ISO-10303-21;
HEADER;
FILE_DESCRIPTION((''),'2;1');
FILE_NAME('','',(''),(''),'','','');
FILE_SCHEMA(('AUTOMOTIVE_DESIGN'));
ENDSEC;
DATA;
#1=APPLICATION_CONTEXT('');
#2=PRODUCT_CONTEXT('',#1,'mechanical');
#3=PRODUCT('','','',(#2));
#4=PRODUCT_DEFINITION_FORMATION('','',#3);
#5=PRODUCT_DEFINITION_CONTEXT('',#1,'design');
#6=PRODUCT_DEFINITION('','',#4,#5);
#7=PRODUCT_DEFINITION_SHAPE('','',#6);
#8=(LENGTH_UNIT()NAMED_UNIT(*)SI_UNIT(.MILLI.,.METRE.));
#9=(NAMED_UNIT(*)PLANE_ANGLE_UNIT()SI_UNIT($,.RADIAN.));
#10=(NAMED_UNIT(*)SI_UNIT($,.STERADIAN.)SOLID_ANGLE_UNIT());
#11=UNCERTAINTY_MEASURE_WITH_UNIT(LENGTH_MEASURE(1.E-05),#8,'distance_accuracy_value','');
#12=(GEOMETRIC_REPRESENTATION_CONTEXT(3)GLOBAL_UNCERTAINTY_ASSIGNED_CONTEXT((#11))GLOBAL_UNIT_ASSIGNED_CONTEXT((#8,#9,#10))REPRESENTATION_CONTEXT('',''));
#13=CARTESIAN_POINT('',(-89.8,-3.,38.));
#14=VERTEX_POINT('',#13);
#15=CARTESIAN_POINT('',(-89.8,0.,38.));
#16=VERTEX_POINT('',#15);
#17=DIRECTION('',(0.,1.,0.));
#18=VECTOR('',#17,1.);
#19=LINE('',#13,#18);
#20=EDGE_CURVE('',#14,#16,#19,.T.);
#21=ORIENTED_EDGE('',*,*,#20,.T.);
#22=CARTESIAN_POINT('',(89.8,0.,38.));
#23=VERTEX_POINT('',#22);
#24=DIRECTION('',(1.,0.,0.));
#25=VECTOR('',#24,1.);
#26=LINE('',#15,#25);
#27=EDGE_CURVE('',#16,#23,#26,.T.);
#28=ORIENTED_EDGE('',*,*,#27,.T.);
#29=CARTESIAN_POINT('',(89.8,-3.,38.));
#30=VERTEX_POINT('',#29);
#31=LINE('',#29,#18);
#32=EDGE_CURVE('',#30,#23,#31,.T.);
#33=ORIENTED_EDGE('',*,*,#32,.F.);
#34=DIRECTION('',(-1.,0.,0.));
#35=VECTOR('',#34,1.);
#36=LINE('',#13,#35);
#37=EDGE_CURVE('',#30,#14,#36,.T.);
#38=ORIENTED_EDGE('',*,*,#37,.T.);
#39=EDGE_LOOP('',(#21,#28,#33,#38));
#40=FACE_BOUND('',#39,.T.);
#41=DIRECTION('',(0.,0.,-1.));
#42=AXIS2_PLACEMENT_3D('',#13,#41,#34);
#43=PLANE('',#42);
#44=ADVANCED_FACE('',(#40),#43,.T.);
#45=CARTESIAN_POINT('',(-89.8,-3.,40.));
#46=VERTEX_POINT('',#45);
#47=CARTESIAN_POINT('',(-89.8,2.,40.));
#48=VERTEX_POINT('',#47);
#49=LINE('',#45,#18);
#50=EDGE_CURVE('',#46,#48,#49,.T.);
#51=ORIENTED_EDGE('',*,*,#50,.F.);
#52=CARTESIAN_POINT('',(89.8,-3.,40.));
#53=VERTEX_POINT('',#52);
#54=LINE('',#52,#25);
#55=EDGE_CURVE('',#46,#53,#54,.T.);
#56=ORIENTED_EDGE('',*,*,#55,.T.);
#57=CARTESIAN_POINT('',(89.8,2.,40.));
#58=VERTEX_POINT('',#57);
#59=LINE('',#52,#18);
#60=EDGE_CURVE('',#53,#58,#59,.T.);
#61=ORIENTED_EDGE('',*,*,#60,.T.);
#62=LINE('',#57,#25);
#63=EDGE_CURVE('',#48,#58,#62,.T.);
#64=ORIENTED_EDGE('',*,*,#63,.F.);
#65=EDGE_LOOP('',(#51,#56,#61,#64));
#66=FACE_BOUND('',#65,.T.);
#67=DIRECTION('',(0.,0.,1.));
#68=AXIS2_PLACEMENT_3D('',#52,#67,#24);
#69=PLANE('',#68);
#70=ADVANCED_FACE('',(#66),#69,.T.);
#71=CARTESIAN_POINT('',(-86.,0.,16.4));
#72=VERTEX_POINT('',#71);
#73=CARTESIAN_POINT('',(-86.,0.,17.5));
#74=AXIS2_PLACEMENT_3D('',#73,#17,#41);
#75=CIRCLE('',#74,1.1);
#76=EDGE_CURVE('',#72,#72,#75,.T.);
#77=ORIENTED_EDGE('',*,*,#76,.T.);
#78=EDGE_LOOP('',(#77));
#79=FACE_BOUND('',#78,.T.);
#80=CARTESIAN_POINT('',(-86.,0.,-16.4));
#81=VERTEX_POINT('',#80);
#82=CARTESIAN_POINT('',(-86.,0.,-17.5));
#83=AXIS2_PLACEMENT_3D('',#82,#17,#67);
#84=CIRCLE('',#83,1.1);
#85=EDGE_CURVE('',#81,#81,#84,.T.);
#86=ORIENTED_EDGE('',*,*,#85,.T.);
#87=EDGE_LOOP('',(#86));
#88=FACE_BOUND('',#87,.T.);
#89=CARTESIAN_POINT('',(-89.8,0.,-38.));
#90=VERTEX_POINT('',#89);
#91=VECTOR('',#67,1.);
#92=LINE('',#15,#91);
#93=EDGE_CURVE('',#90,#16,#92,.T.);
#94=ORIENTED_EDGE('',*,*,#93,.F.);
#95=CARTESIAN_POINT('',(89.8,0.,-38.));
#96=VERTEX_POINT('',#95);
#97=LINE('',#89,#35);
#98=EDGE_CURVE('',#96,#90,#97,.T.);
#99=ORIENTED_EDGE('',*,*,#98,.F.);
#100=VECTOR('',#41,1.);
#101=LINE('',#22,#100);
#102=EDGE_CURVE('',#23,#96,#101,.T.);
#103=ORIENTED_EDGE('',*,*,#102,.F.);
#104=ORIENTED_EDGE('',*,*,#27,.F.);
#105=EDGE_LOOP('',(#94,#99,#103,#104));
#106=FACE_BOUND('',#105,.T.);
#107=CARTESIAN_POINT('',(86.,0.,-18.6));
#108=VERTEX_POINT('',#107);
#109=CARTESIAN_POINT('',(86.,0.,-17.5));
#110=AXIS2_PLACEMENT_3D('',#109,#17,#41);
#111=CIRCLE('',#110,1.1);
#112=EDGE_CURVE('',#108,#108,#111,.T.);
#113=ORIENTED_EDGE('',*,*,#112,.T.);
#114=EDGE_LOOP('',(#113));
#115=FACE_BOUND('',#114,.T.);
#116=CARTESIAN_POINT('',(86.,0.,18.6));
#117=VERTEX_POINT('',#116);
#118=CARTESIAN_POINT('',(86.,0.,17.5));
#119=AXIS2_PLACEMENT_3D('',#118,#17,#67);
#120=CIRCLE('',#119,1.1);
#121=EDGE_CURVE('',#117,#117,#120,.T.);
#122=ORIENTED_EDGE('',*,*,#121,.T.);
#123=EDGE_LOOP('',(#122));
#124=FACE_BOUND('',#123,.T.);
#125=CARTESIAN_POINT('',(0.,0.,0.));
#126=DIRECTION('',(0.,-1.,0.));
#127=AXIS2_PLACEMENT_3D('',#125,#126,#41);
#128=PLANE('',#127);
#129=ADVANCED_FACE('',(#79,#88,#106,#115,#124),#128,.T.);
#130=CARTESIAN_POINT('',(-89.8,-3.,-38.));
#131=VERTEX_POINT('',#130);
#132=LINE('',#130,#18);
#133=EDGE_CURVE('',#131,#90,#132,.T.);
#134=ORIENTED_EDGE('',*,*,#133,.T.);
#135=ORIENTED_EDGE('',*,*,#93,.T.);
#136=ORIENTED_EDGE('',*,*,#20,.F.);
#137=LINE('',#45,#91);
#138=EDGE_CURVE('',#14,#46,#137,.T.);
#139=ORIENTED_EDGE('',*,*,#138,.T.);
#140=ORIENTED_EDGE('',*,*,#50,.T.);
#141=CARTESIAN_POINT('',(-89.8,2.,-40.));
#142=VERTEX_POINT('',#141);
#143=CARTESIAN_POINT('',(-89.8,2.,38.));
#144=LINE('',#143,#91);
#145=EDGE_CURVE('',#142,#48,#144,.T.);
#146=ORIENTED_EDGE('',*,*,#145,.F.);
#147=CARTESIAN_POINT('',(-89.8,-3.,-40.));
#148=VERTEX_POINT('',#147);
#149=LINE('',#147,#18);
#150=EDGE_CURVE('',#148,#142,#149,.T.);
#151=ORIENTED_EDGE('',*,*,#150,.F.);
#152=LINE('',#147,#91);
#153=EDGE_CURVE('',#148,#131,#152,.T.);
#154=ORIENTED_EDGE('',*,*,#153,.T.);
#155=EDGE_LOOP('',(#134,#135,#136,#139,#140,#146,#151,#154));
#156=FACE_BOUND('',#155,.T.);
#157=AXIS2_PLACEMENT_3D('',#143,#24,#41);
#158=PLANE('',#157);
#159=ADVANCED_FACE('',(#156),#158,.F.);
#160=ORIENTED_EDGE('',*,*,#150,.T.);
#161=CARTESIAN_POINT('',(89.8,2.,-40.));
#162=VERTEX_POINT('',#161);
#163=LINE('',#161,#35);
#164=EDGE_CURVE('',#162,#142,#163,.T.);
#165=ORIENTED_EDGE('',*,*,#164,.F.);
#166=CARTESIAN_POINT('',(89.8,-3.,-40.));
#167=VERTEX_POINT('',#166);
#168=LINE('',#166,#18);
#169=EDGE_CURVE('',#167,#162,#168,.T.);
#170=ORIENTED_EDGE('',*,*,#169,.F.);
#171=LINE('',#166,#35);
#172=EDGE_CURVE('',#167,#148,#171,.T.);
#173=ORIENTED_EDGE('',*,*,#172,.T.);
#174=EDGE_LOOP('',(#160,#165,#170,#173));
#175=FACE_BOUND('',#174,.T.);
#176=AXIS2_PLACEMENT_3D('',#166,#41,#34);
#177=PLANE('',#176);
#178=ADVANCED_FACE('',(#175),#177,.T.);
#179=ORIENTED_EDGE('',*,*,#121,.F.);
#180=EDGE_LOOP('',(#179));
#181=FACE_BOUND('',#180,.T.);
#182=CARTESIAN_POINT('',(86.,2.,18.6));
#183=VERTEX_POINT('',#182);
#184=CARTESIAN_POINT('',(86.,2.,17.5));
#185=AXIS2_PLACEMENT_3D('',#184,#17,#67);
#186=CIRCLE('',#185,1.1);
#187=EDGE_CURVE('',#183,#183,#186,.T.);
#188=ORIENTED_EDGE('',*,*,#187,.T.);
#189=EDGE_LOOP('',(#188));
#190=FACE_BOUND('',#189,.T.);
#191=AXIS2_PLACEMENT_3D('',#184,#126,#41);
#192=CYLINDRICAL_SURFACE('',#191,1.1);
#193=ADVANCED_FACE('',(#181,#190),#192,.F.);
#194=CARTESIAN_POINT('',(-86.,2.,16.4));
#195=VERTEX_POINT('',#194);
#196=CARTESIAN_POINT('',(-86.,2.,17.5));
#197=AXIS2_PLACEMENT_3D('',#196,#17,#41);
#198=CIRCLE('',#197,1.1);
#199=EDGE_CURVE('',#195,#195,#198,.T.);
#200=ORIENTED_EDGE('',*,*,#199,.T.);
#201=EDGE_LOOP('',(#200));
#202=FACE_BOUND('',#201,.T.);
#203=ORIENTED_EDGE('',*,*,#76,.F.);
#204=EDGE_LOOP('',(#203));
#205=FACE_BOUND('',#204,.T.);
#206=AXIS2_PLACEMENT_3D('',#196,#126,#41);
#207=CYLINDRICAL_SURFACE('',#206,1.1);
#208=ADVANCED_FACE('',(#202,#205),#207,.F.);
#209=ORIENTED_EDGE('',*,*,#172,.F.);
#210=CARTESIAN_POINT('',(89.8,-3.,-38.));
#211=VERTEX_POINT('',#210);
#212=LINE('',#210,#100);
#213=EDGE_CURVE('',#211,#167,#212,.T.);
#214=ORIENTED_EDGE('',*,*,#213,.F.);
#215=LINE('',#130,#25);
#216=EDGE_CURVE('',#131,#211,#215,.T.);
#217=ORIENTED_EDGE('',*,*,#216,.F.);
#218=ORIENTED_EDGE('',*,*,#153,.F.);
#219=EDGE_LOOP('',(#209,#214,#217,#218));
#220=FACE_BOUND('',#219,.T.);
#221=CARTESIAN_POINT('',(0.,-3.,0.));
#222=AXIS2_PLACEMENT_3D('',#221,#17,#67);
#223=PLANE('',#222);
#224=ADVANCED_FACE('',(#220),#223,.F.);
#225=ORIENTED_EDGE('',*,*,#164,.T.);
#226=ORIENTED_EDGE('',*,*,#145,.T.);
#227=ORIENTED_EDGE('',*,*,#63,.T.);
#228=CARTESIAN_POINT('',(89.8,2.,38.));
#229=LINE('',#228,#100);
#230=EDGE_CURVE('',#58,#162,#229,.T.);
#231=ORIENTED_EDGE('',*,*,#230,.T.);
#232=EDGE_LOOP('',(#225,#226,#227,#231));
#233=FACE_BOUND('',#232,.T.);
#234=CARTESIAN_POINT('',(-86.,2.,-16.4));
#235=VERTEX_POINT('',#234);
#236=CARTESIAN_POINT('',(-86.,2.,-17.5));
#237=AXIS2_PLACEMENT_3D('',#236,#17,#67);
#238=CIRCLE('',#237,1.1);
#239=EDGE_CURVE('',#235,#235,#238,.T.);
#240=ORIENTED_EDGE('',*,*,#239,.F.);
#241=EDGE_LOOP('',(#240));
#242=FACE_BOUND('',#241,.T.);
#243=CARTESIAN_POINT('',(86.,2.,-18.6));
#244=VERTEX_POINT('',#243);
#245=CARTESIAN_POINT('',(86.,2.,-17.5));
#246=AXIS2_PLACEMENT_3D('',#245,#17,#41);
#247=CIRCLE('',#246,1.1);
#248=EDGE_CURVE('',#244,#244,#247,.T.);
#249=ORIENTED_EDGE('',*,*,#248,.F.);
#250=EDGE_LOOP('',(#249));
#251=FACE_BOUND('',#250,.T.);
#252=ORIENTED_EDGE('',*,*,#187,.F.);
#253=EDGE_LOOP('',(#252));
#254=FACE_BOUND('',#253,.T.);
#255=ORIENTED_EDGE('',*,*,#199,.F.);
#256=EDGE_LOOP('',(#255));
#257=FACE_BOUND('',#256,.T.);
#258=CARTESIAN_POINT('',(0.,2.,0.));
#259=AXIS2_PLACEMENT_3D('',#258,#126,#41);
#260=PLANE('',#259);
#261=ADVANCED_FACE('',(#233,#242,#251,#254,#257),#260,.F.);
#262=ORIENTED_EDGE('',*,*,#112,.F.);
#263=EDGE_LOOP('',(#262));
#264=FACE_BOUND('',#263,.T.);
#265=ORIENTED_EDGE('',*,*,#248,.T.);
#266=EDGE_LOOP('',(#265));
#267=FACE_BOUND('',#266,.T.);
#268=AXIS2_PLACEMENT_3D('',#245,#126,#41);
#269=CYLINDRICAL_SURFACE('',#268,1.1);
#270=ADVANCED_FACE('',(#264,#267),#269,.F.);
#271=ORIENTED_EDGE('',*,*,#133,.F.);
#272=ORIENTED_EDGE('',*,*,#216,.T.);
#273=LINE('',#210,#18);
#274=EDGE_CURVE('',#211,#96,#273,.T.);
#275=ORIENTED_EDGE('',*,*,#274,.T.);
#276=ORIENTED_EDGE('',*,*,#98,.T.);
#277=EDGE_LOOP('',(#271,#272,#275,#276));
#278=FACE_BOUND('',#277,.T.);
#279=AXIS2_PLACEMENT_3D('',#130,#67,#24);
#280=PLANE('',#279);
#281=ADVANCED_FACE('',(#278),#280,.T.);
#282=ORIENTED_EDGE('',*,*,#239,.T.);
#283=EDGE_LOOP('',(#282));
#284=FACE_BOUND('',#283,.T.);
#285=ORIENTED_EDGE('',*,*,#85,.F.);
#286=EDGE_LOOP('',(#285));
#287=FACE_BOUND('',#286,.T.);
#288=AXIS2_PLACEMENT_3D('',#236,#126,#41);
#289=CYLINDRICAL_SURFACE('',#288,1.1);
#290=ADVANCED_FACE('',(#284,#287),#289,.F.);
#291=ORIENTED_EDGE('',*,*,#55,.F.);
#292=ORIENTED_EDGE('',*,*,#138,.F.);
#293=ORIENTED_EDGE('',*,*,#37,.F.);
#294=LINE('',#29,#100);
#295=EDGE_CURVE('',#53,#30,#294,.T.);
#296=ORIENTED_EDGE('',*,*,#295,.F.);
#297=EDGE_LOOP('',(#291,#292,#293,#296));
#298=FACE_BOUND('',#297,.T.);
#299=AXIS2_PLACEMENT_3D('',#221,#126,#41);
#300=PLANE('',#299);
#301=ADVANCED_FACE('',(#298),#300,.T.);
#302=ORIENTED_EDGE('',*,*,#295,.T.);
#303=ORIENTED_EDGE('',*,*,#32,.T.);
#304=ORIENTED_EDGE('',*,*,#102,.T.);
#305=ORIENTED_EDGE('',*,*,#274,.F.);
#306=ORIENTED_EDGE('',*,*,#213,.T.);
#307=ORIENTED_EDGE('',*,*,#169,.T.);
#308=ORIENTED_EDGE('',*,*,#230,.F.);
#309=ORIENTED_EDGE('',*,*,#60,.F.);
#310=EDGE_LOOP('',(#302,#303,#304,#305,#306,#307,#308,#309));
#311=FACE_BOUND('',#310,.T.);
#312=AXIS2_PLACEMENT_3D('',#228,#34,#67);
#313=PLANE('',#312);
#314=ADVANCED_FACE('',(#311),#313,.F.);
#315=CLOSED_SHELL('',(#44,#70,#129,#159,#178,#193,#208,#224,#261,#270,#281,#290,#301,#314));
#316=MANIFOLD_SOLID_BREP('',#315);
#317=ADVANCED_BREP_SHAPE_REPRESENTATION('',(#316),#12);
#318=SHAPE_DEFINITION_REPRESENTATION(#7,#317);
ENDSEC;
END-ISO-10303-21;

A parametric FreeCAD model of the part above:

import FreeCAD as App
import Part
import Sketcher

V = App.Vector

doc = App.newDocument("Part")
params = doc.addObject("Spreadsheet::Sheet", "Params")
for row, (alias, value) in enumerate([
    ("sketch1_diameter", "2.2 mm"),
    ("sketch1_height", "76 mm"),
    ("sketch1_width", "179.6 mm"),
    ("pad1_length", "2 mm"),
    ("sketch2_height", "2 mm"),
    ("sketch2_width", "179.6 mm"),
    ("pad2_length", "5 mm"),
], start=1):
    params.set(f"A{row}", alias)
    params.set(f"B{row}", "=" + value)
    params.setAlias(f"B{row}", alias)

body = doc.addObject("PartDesign::Body", "Body")

# Sketch on XZ plane
sketch1 = doc.addObject("Sketcher::SketchObject", "Sketch")
body.addObject(sketch1)
sketch1.AttachmentSupport = (doc.XZ_Plane, [""])
sketch1.MapMode = "FlatFace"
sketch1.addGeometry(Part.LineSegment(V(-89.8, -38, 0), V(-89.8, 38, 0)), False)
sketch1.addGeometry(Part.LineSegment(V(-89.8, 38, 0), V(89.8, 38, 0)), False)
sketch1.addGeometry(Part.LineSegment(V(89.8, 38, 0), V(89.8, -38, 0)), False)
sketch1.addGeometry(Part.LineSegment(V(89.8, -38, 0), V(-89.8, -38, 0)), False)
sketch1.addGeometry(Part.Circle(V(-86, 17.5, 0), V(0, 0, 1), 1.1), False)
sketch1.addGeometry(Part.Circle(V(86, 17.5, 0), V(0, 0, 1), 1.1), False)
sketch1.addGeometry(Part.Circle(V(-86, -17.5, 0), V(0, 0, 1), 1.1), False)
sketch1.addGeometry(Part.Circle(V(86, -17.5, 0), V(0, 0, 1), 1.1), False)
sketch1.addConstraint(Sketcher.Constraint("Coincident", 0, 2, 1, 1))
sketch1.addConstraint(Sketcher.Constraint("Coincident", 1, 2, 2, 1))
sketch1.addConstraint(Sketcher.Constraint("Coincident", 2, 2, 3, 1))
sketch1.addConstraint(Sketcher.Constraint("Coincident", 3, 2, 0, 1))
sketch1.addConstraint(Sketcher.Constraint("Vertical", 0))
sketch1.addConstraint(Sketcher.Constraint("Horizontal", 1))
sketch1.addConstraint(Sketcher.Constraint("Vertical", 2))
sketch1.addConstraint(Sketcher.Constraint("Horizontal", 3))
sketch1.addConstraint(Sketcher.Constraint("Equal", 4, 5))
sketch1.addConstraint(Sketcher.Constraint("Equal", 5, 6))
sketch1.addConstraint(Sketcher.Constraint("Equal", 6, 7))
sketch1.addConstraint(Sketcher.Constraint("Symmetric", 5, 3, 6, 3, -1, 1))
sketch1.addConstraint(Sketcher.Constraint("Symmetric", 4, 3, 7, 3, -1, 1))
sketch1.addConstraint(Sketcher.Constraint("Symmetric", 0, 2, 2, 2, -1, 1))
sketch1.addConstraint(Sketcher.Constraint("Symmetric", 4, 3, 5, 3, -2))
sketch1.addConstraint(Sketcher.Constraint("Diameter", 4, 2.2))
sketch1.addConstraint(Sketcher.Constraint("DistanceY", 0, 1, 0, 2, 76.0))
sketch1.addConstraint(Sketcher.Constraint("DistanceX", 1, 1, 1, 2, 179.6))
sketch1.addConstraint(Sketcher.Constraint("DistanceX", 4, 3, -1, 1, 86.0))
sketch1.addConstraint(Sketcher.Constraint("DistanceY", 6, 3, 4, 3, 35.0))
sketch1.setExpression("Constraints[15]", "Params.sketch1_diameter")
sketch1.setExpression("Constraints[16]", "Params.sketch1_height")
sketch1.setExpression("Constraints[17]", "Params.sketch1_width")
pad1 = doc.addObject("PartDesign::Pad", "Pad")
body.addObject(pad1)
pad1.Profile = sketch1
pad1.setExpression("Length", "Params.pad1_length")
pad1.Reversed = True

# Sketch on XZ plane
sketch2 = doc.addObject("Sketcher::SketchObject", "Sketch001")
body.addObject(sketch2)
sketch2.AttachmentSupport = (doc.XZ_Plane, [""])
sketch2.MapMode = "FlatFace"
sketch2.AttachmentOffset = App.Placement(V(0, 0, -2), App.Rotation())
sketch2.addGeometry(Part.LineSegment(V(-89.8, -40, 0), V(-89.8, -38, 0)), False)
sketch2.addGeometry(Part.LineSegment(V(-89.8, -38, 0), V(89.8, -38, 0)), False)
sketch2.addGeometry(Part.LineSegment(V(89.8, -38, 0), V(89.8, -40, 0)), False)
sketch2.addGeometry(Part.LineSegment(V(89.8, -40, 0), V(-89.8, -40, 0)), False)
sketch2.addGeometry(Part.LineSegment(V(-89.8, 38, 0), V(-89.8, 40, 0)), False)
sketch2.addGeometry(Part.LineSegment(V(-89.8, 40, 0), V(89.8, 40, 0)), False)
sketch2.addGeometry(Part.LineSegment(V(89.8, 40, 0), V(89.8, 38, 0)), False)
sketch2.addGeometry(Part.LineSegment(V(89.8, 38, 0), V(-89.8, 38, 0)), False)
sketch2.addConstraint(Sketcher.Constraint("Coincident", 0, 2, 1, 1))
sketch2.addConstraint(Sketcher.Constraint("Coincident", 1, 2, 2, 1))
sketch2.addConstraint(Sketcher.Constraint("Coincident", 2, 2, 3, 1))
sketch2.addConstraint(Sketcher.Constraint("Coincident", 3, 2, 0, 1))
sketch2.addConstraint(Sketcher.Constraint("Coincident", 4, 2, 5, 1))
sketch2.addConstraint(Sketcher.Constraint("Coincident", 5, 2, 6, 1))
sketch2.addConstraint(Sketcher.Constraint("Coincident", 6, 2, 7, 1))
sketch2.addConstraint(Sketcher.Constraint("Coincident", 7, 2, 4, 1))
sketch2.addConstraint(Sketcher.Constraint("Vertical", 0))
sketch2.addConstraint(Sketcher.Constraint("Horizontal", 1))
sketch2.addConstraint(Sketcher.Constraint("Vertical", 2))
sketch2.addConstraint(Sketcher.Constraint("Horizontal", 3))
sketch2.addConstraint(Sketcher.Constraint("Vertical", 4))
sketch2.addConstraint(Sketcher.Constraint("Horizontal", 5))
sketch2.addConstraint(Sketcher.Constraint("Vertical", 6))
sketch2.addConstraint(Sketcher.Constraint("Horizontal", 7))
sketch2.addConstraint(Sketcher.Constraint("Symmetric", 2, 2, 4, 2, -1, 1))
sketch2.addConstraint(Sketcher.Constraint("Symmetric", 0, 2, 6, 2, -1, 1))
sketch2.addConstraint(Sketcher.Constraint("Vertical", 3, 2, 4, 2))
sketch2.addConstraint(Sketcher.Constraint("DistanceY", 0, 1, 0, 2, 2.0))
sketch2.addConstraint(Sketcher.Constraint("DistanceX", 1, 1, 1, 2, 179.6))
sketch2.addConstraint(Sketcher.Constraint("DistanceY", 0, 2, -1, 1, 38.0))
sketch2.setExpression("Constraints[19]", "Params.sketch2_height")
sketch2.setExpression("Constraints[20]", "Params.sketch2_width")
pad2 = doc.addObject("PartDesign::Pad", "Pad001")
body.addObject(pad2)
pad2.Profile = sketch2
pad2.setExpression("Length", "Params.pad2_length")

doc.recompute()
